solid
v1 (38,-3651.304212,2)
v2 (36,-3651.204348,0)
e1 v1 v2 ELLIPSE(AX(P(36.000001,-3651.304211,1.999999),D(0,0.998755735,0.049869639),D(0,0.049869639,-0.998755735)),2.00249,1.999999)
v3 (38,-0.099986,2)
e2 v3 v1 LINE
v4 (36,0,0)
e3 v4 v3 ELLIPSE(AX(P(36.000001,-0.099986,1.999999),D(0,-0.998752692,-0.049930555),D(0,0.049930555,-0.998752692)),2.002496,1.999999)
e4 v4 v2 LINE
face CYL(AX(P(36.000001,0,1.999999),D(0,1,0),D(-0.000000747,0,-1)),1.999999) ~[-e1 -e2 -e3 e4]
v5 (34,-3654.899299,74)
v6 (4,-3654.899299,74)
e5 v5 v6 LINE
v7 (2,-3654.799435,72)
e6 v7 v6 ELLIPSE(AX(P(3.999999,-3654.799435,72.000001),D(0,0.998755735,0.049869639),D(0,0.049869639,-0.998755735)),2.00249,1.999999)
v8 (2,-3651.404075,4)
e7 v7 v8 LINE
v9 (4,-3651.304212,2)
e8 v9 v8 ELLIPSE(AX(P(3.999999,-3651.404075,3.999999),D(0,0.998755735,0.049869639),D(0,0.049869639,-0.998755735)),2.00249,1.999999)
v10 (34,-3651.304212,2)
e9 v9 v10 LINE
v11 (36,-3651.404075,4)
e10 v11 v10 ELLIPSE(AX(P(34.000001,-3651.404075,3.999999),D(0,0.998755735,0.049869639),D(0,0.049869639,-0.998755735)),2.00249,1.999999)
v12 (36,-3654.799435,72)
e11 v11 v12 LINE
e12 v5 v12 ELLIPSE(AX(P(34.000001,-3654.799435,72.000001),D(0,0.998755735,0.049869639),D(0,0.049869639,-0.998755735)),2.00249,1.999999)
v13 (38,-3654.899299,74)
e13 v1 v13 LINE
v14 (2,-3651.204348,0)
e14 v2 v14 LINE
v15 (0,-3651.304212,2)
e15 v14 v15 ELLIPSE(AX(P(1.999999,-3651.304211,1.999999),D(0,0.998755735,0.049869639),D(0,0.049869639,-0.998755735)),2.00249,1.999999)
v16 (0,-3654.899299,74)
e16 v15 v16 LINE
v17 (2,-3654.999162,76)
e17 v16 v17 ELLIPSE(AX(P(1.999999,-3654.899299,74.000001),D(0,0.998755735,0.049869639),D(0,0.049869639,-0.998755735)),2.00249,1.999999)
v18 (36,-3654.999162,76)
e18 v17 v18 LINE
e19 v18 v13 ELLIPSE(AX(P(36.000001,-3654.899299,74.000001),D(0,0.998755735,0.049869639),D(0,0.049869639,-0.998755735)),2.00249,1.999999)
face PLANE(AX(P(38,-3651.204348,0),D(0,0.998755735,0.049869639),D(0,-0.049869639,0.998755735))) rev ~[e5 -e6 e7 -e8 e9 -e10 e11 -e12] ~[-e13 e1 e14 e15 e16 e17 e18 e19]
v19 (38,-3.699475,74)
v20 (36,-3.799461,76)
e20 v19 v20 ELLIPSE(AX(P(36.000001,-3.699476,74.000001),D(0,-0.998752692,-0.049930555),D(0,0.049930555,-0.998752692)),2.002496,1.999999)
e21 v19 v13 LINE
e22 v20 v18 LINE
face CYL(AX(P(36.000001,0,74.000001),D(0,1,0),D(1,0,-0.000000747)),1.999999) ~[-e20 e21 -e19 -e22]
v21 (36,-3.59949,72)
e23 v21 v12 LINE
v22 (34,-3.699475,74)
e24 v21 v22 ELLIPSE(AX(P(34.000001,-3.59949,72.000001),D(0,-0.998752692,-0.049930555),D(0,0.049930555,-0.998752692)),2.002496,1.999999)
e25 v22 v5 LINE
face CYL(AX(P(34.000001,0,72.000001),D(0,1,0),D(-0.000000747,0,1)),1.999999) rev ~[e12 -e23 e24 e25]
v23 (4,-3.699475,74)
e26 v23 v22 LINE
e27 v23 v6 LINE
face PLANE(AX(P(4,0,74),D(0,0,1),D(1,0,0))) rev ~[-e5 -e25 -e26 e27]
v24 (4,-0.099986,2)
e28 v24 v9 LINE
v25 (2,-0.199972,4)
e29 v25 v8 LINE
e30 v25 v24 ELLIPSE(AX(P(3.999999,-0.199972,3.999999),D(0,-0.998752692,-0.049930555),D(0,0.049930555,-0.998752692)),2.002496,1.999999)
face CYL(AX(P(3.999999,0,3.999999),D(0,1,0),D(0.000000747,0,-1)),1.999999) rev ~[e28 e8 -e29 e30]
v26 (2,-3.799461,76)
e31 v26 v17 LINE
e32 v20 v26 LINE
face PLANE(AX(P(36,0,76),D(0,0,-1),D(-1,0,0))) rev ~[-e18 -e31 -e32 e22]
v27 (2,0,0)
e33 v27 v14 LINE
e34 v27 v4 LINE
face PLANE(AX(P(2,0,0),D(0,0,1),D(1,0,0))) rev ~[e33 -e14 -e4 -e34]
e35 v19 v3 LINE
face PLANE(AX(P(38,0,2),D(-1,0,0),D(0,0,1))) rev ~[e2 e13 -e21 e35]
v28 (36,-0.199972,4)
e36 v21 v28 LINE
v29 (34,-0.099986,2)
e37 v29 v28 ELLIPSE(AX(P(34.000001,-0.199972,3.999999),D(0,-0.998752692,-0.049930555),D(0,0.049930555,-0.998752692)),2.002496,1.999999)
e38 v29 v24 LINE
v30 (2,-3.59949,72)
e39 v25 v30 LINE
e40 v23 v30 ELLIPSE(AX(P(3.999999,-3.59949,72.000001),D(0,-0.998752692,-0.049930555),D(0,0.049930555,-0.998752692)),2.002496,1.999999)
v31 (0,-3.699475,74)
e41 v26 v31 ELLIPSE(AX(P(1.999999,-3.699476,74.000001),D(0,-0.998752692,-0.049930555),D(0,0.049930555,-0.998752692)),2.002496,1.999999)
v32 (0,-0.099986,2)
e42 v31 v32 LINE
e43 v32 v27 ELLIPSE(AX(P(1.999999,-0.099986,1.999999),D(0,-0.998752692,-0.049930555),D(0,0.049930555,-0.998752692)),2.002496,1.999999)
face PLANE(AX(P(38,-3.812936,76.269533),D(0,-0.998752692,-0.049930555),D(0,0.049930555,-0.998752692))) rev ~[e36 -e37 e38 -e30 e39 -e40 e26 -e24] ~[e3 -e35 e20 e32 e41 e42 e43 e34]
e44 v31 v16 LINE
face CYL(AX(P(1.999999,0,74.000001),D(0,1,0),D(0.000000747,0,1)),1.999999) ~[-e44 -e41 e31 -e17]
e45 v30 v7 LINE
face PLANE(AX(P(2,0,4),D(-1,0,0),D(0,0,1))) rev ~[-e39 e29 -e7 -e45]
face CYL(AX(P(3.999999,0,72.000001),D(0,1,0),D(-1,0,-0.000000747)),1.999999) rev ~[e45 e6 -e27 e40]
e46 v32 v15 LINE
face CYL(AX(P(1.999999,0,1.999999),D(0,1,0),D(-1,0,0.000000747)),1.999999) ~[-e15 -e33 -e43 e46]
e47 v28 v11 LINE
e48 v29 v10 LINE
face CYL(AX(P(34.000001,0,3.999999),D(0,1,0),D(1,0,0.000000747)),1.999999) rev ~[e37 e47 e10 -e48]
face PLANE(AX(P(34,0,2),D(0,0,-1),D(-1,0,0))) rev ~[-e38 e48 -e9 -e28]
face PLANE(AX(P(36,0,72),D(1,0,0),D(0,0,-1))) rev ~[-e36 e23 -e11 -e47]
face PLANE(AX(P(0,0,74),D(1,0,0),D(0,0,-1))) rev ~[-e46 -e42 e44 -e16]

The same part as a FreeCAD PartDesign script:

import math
import FreeCAD as App
import Part
import Sketcher


def add_polygon(sketch, points):
    """Adds a closed chain of lines whose ends are joined by coincident constraints."""
    first, n = sketch.GeometryCount, len(points)
    for a, b in zip(points, points[1:] + points[:1]):
        sketch.addGeometry(Part.LineSegment(App.Vector(*a, 0), App.Vector(*b, 0)), False)
    for i in range(n):
        sketch.addConstraint(Sketcher.Constraint("Coincident", first + i, 2, first + (i + 1) % n, 1))

doc = App.newDocument("Part")
body = doc.addObject("PartDesign::Body", "Body")

# Sketch on XZ plane
sketch1 = body.newObject("Sketcher::SketchObject", "Sketch")
sketch1.AttachmentSupport = (doc.getObject("XZ_Plane"), [""])
sketch1.MapMode = "FlatFace"
sketch1.addGeometry([
    Part.ArcOfCircle(Part.Circle(App.Vector(2, 2, 0), App.Vector(0, 0, 1), 2), math.radians(180), math.radians(270)),  # 0
    Part.LineSegment(App.Vector(2, 0, 0), App.Vector(36, 0, 0)),  # 1
    Part.ArcOfCircle(Part.Circle(App.Vector(36, 2, 0), App.Vector(0, 0, 1), 2), math.radians(-90), math.radians(0)),  # 2
    Part.LineSegment(App.Vector(38, 2, 0), App.Vector(38, 74, 0)),  # 3
    Part.ArcOfCircle(Part.Circle(App.Vector(36, 74, 0), App.Vector(0, 0, 1), 2), math.radians(0), math.radians(90)),  # 4
    Part.LineSegment(App.Vector(36, 76, 0), App.Vector(2, 76, 0)),  # 5
    Part.ArcOfCircle(Part.Circle(App.Vector(2, 74, 0), App.Vector(0, 0, 1), 2), math.radians(90), math.radians(180)),  # 6
    Part.LineSegment(App.Vector(0, 74, 0), App.Vector(0, 2, 0)),  # 7
    Part.LineSegment(App.Vector(34, 2, 0), App.Vector(4, 2, 0)),  # 8
    Part.ArcOfCircle(Part.Circle(App.Vector(4, 4, 0), App.Vector(0, 0, 1), 2), math.radians(180), math.radians(270)),  # 9
    Part.LineSegment(App.Vector(2, 4, 0), App.Vector(2, 72, 0)),  # 10
    Part.ArcOfCircle(Part.Circle(App.Vector(4, 72, 0), App.Vector(0, 0, 1), 2), math.radians(90), math.radians(180)),  # 11
    Part.LineSegment(App.Vector(4, 74, 0), App.Vector(34, 74, 0)),  # 12
    Part.ArcOfCircle(Part.Circle(App.Vector(34, 72, 0), App.Vector(0, 0, 1), 2), math.radians(0), math.radians(90)),  # 13
    Part.LineSegment(App.Vector(36, 72, 0), App.Vector(36, 4, 0)),  # 14
    Part.ArcOfCircle(Part.Circle(App.Vector(34, 4, 0), App.Vector(0, 0, 1), 2), math.radians(-90), math.radians(0)),  # 15
], False)
sketch1.addConstraint([
    Sketcher.Constraint("Tangent", 0, 2, 1, 1),
    Sketcher.Constraint("Tangent", 1, 2, 2, 1),
    Sketcher.Constraint("Tangent", 2, 2, 3, 1),
    Sketcher.Constraint("Tangent", 3, 2, 4, 1),
    Sketcher.Constraint("Tangent", 4, 2, 5, 1),
    Sketcher.Constraint("Tangent", 5, 2, 6, 1),
    Sketcher.Constraint("Tangent", 6, 2, 7, 1),
    Sketcher.Constraint("Tangent", 7, 2, 0, 1),
    Sketcher.Constraint("Tangent", 8, 2, 9, 2),
    Sketcher.Constraint("Tangent", 9, 1, 10, 1),
    Sketcher.Constraint("Tangent", 10, 2, 11, 2),
    Sketcher.Constraint("Tangent", 11, 1, 12, 1),
    Sketcher.Constraint("Tangent", 12, 2, 13, 2),
    Sketcher.Constraint("Tangent", 13, 1, 14, 1),
    Sketcher.Constraint("Tangent", 14, 2, 15, 2),
    Sketcher.Constraint("Tangent", 15, 1, 8, 1),
    Sketcher.Constraint("Horizontal", 1),
    Sketcher.Constraint("Vertical", 3),
    Sketcher.Constraint("Horizontal", 5),
    Sketcher.Constraint("Vertical", 7),
    Sketcher.Constraint("Horizontal", 8),
    Sketcher.Constraint("Vertical", 10),
    Sketcher.Constraint("Horizontal", 12),
    Sketcher.Constraint("Vertical", 14),
    Sketcher.Constraint("Equal", 0, 2),
    Sketcher.Constraint("Equal", 2, 4),
    Sketcher.Constraint("Equal", 4, 6),
    Sketcher.Constraint("Equal", 6, 9),
    Sketcher.Constraint("Equal", 9, 11),
    Sketcher.Constraint("Equal", 11, 13),
    Sketcher.Constraint("Equal", 13, 15),
    Sketcher.Constraint("PointOnObject", 0, 2, -1),
    Sketcher.Constraint("PointOnObject", 6, 2, -2),
    Sketcher.Constraint("Horizontal", 7, 2, 8, 2),
    Sketcher.Constraint("Horizontal", 6, 2, 11, 1),
    Sketcher.Constraint("Vertical", 5, 2, 9, 1),
    Sketcher.Constraint("Vertical", 4, 2, 13, 1),
    Sketcher.Constraint("Radius", 0, 1.999999),
    Sketcher.Constraint("DistanceX", 1, 1, 1, 2, 34.0),
    Sketcher.Constraint("DistanceY", 3, 1, 3, 2, 72.0),
])
pad1 = body.newObject("PartDesign::Pad", "Pad")
pad1.Profile = sketch1
pad1.Length = 3655

# Sketch on YZ plane
sketch2 = body.newObject("Sketcher::SketchObject", "Sketch001")
sketch2.AttachmentSupport = (doc.getObject("YZ_Plane"), [""])
sketch2.MapMode = "FlatFace"
sketch2.AttachmentOffset = App.Placement(App.Vector(0, 0, 38), App.Rotation())
add_polygon(sketch2, [(-3.8, 76.3), (0, 0), (0, 76.5)])  # lines 0-2
sketch2.addConstraint([
    Sketcher.Constraint("Vertical", 1),
    Sketcher.Constraint("Coincident", 0, 2, -1, 1),
    Sketcher.Constraint("Perpendicular", 0, 2),
    Sketcher.Constraint("DistanceY", 1, 1, 1, 2, 76.460153),
    Sketcher.Constraint("DistanceY", 2, 2, 1, 2, 0.19062),
])
pocket1 = body.newObject("PartDesign::Pocket", "Pocket")
pocket1.Profile = sketch2
pocket1.Length = 38

# Sketch on YZ plane
sketch3 = body.newObject("Sketcher::SketchObject", "Sketch002")
sketch3.AttachmentSupport = (doc.getObject("YZ_Plane"), [""])
sketch3.MapMode = "FlatFace"
sketch3.AttachmentOffset = App.Placement(App.Vector(0, 0, 38), App.Rotation())
add_polygon(sketch3, [(-3655, 76), (-3655, 0), (-3651.2, 0)])  # lines 0-2
sketch3.addConstraint([
    Sketcher.Constraint("Horizontal", 1),
    Sketcher.Constraint("PointOnObject", 0, 2, -1),
    Sketcher.Constraint("DistanceX", 2, 2, -1, 1, 3655.0),
    Sketcher.Constraint("Distance", 2, 76.111479),
    Sketcher.Constraint("DistanceX", 1, 1, 1, 2, 3.800288),
    Sketcher.Constraint("DistanceX", 1, 2, -1, 1, 3651.204348),
])
pocket2 = body.newObject("PartDesign::Pocket", "Pocket001")
pocket2.Profile = sketch3
pocket2.Length = 38

doc.recompute()
